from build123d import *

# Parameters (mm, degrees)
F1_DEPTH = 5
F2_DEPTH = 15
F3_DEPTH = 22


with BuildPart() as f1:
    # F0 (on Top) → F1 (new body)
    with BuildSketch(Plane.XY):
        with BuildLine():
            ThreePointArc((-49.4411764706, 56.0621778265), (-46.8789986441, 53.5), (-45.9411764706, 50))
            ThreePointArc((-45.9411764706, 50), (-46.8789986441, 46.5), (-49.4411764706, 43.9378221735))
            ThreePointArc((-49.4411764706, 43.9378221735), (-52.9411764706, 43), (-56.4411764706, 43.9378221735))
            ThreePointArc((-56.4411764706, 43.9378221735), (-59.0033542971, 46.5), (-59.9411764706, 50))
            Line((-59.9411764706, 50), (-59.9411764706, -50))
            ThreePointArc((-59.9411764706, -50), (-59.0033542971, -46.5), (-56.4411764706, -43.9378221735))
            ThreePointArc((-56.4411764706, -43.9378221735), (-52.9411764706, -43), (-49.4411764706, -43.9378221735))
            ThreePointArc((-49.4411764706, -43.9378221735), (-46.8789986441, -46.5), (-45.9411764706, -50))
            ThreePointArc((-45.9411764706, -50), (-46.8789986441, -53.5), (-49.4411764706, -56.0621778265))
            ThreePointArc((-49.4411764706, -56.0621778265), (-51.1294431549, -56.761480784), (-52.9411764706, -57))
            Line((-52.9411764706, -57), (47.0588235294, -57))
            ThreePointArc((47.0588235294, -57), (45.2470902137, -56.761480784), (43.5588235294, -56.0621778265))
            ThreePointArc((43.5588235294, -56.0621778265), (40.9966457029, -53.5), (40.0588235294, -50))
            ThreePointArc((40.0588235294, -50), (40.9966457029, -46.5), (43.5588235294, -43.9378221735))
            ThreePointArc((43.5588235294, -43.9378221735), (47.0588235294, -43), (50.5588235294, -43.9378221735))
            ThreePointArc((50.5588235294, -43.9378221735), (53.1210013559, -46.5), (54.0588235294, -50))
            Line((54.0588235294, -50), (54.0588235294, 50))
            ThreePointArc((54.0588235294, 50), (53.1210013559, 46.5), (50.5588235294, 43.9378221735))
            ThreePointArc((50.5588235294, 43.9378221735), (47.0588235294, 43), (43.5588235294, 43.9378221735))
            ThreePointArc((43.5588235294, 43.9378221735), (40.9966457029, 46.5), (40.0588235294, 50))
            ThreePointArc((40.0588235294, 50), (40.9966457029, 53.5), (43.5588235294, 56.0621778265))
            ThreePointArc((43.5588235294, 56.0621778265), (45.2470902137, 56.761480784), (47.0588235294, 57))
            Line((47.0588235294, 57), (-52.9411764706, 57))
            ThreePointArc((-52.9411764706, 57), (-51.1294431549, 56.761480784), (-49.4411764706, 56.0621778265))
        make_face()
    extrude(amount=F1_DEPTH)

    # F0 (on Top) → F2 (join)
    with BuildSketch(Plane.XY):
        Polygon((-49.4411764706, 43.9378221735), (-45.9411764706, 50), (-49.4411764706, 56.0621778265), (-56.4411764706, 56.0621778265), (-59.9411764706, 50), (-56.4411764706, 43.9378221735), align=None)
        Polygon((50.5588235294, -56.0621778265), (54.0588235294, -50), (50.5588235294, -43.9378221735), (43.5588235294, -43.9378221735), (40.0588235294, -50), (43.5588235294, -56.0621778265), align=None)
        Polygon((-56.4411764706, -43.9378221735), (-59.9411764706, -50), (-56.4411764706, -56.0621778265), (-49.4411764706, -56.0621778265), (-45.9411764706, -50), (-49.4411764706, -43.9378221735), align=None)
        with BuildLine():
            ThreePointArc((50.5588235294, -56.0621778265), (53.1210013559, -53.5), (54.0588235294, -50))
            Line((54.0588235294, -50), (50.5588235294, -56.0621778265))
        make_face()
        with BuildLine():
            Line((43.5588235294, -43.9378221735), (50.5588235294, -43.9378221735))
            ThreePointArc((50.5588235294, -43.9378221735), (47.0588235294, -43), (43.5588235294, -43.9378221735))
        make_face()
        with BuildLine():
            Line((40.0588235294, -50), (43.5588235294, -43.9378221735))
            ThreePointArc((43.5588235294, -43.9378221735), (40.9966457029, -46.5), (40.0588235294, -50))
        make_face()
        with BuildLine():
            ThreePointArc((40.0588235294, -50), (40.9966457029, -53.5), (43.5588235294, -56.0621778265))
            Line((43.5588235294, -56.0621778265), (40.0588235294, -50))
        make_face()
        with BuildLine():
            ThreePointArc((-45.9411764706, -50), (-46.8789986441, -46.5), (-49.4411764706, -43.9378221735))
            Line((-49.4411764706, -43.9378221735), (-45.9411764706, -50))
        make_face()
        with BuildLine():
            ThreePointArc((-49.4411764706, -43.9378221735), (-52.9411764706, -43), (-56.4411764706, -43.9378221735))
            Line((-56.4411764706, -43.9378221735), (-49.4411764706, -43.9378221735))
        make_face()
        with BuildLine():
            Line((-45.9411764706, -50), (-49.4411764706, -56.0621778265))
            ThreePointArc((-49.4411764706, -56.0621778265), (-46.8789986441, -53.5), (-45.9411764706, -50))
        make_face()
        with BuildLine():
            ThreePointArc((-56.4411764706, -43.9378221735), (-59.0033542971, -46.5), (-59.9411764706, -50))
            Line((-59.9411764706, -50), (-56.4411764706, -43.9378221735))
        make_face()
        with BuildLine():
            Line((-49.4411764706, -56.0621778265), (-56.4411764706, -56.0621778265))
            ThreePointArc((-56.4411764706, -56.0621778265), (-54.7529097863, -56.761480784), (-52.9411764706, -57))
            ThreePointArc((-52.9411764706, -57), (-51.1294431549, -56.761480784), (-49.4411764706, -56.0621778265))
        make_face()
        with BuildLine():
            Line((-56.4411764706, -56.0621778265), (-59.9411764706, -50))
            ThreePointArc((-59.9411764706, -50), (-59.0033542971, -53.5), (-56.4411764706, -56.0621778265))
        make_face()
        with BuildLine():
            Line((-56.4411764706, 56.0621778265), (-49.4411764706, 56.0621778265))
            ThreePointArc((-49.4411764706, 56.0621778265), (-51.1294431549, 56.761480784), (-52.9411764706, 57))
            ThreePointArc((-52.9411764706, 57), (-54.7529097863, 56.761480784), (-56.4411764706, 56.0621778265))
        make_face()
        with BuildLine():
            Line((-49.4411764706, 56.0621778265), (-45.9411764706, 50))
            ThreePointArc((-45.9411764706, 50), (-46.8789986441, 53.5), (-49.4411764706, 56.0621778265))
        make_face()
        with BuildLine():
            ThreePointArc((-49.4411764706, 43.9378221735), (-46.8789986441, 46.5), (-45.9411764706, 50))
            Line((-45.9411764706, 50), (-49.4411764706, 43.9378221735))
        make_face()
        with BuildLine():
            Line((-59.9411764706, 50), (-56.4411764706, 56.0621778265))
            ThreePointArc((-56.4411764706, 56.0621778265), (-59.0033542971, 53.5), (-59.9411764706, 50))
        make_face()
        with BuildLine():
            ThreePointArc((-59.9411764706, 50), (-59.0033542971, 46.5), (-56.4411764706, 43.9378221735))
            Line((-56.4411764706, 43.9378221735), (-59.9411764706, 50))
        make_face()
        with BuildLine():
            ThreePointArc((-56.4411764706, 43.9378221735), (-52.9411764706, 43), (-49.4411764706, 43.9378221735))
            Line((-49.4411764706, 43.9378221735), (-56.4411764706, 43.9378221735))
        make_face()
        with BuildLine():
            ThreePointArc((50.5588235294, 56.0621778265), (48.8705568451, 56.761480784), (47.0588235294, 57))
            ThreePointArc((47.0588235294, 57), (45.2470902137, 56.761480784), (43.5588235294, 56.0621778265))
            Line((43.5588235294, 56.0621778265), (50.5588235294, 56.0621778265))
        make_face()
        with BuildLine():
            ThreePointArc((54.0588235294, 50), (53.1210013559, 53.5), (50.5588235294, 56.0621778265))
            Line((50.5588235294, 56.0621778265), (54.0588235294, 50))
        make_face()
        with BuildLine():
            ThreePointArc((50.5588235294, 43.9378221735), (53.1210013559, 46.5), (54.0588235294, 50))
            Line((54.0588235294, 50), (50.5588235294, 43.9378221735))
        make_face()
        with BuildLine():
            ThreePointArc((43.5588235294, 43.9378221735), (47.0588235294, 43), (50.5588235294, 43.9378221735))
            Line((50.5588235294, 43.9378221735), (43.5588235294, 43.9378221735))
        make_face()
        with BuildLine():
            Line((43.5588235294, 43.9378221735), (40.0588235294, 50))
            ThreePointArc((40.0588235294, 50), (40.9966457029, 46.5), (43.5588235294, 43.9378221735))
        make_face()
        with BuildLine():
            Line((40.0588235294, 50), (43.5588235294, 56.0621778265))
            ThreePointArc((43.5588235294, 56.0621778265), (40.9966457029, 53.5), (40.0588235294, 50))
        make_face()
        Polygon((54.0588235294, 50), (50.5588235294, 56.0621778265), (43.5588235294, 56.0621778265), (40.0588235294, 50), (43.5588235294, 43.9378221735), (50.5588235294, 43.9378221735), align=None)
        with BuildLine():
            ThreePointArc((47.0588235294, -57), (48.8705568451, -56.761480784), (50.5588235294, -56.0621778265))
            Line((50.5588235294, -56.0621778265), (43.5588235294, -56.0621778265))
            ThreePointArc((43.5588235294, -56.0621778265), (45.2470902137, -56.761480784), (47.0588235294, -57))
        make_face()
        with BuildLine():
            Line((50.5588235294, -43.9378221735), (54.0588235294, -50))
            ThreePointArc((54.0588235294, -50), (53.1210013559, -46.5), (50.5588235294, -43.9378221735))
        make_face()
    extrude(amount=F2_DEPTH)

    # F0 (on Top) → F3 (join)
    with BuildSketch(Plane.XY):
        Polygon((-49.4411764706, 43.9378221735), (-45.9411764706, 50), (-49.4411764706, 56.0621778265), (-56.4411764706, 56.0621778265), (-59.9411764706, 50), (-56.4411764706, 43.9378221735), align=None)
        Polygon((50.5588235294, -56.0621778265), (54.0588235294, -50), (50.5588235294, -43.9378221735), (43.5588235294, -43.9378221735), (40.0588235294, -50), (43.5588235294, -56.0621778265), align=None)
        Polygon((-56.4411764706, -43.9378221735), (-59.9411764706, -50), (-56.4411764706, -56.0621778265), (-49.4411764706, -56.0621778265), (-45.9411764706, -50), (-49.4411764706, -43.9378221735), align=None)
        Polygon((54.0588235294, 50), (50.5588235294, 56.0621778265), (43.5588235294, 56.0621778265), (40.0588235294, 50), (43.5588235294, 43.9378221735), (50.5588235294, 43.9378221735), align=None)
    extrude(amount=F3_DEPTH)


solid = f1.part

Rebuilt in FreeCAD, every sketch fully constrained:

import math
import FreeCAD as App
import Part
import Sketcher
from FreeCAD import Vector
Q = App.Units.Quantity


def add_polygon(sketch, points):
    """Adds a closed chain of lines whose ends are joined by coincident constraints."""
    first, n = sketch.GeometryCount, len(points)
    for a, b in zip(points, points[1:] + points[:1]):
        sketch.addGeometry(Part.LineSegment(App.Vector(*a, 0), App.Vector(*b, 0)), False)
    for i in range(n):
        sketch.addConstraint(Sketcher.Constraint("Coincident", first + i, 2, first + (i + 1) % n, 1))

doc = App.newDocument("Part")
body = doc.addObject("PartDesign::Body", "Body")

# Sketch on XY plane
sketch1 = body.newObject("Sketcher::SketchObject", "Sketch")
sketch1.AttachmentSupport = (doc.getObject("XY_Plane"), [""])
sketch1.MapMode = "FlatFace"
sketch1.addGeometry([
    Part.ArcOfCircle(Part.Circle(Vector(-52.941176, 50, 0), Vector(0, 0, 1), 7), math.radians(0), math.radians(60)),  # 0
    Part.ArcOfCircle(Part.Circle(Vector(-52.941176, 50, 0), Vector(0, 0, 1), 7), math.radians(-60), math.radians(0)),  # 1
    Part.ArcOfCircle(Part.Circle(Vector(-52.941176, 50, 0), Vector(0, 0, 1), 7), math.radians(-120), math.radians(-60)),  # 2
    Part.ArcOfCircle(Part.Circle(Vector(-52.941176, 50, 0), Vector(0, 0, 1), 7), math.radians(180), math.radians(240)),  # 3
    Part.LineSegment(Vector(-59.941176, 50, 0), Vector(-59.941176, -50, 0)),  # 4
    Part.ArcOfCircle(Part.Circle(Vector(-52.941176, -50, 0), Vector(0, 0, 1), 7), math.radians(120), math.radians(180)),  # 5
    Part.ArcOfCircle(Part.Circle(Vector(-52.941176, -50, 0), Vector(0, 0, 1), 7), math.radians(60), math.radians(120)),  # 6
    Part.ArcOfCircle(Part.Circle(Vector(-52.941176, -50, 0), Vector(0, 0, 1), 7), math.radians(0), math.radians(60)),  # 7
    Part.ArcOfCircle(Part.Circle(Vector(-52.941176, -50, 0), Vector(0, 0, 1), 7), math.radians(-60), math.radians(0)),  # 8
    Part.ArcOfCircle(Part.Circle(Vector(-52.941176, -50, 0), Vector(0, 0, 1), 7), math.radians(-90), math.radians(-60)),  # 9
    Part.LineSegment(Vector(-52.941176, -57, 0), Vector(47.058824, -57, 0)),  # 10
    Part.ArcOfCircle(Part.Circle(Vector(47.058824, -50, 0), Vector(0, 0, 1), 7), math.radians(-120), math.radians(-90)),  # 11
    Part.ArcOfCircle(Part.Circle(Vector(47.058824, -50, 0), Vector(0, 0, 1), 7), math.radians(180), math.radians(240)),  # 12
    Part.ArcOfCircle(Part.Circle(Vector(47.058824, -50, 0), Vector(0, 0, 1), 7), math.radians(120), math.radians(180)),  # 13
    Part.ArcOfCircle(Part.Circle(Vector(47.058824, -50, 0), Vector(0, 0, 1), 7), math.radians(60), math.radians(120)),  # 14
    Part.ArcOfCircle(Part.Circle(Vector(47.058824, -50, 0), Vector(0, 0, 1), 7), math.radians(0), math.radians(60)),  # 15
    Part.LineSegment(Vector(54.058824, -50, 0), Vector(54.058824, 50, 0)),  # 16
    Part.ArcOfCircle(Part.Circle(Vector(47.058824, 50, 0), Vector(0, 0, 1), 7), math.radians(-60), math.radians(0)),  # 17
    Part.ArcOfCircle(Part.Circle(Vector(47.058824, 50, 0), Vector(0, 0, 1), 7), math.radians(-120), math.radians(-60)),  # 18
    Part.ArcOfCircle(Part.Circle(Vector(47.058824, 50, 0), Vector(0, 0, 1), 7), math.radians(180), math.radians(240)),  # 19
    Part.ArcOfCircle(Part.Circle(Vector(47.058824, 50, 0), Vector(0, 0, 1), 7), math.radians(120), math.radians(180)),  # 20
    Part.ArcOfCircle(Part.Circle(Vector(47.058824, 50, 0), Vector(0, 0, 1), 7), math.radians(90), math.radians(120)),  # 21
    Part.LineSegment(Vector(47.058824, 57, 0), Vector(-52.941176, 57, 0)),  # 22
    Part.ArcOfCircle(Part.Circle(Vector(-52.941176, 50, 0), Vector(0, 0, 1), 7), math.radians(60), math.radians(90)),  # 23
], False)
sketch1.addConstraint([
    Sketcher.Constraint("Tangent", 0, 1, 1, 2),
    Sketcher.Constraint("Tangent", 1, 1, 2, 2),
    Sketcher.Constraint("Tangent", 2, 1, 3, 2),
    Sketcher.Constraint("Tangent", 3, 1, 4, 1),
    Sketcher.Constraint("Tangent", 4, 2, 5, 2),
    Sketcher.Constraint("Tangent", 5, 1, 6, 2),
    Sketcher.Constraint("Tangent", 6, 1, 7, 2),
    Sketcher.Constraint("Tangent", 7, 1, 8, 2),
    Sketcher.Constraint("Tangent", 8, 1, 9, 2),
    Sketcher.Constraint("Tangent", 9, 1, 10, 1),
    Sketcher.Constraint("Tangent", 10, 2, 11, 2),
    Sketcher.Constraint("Tangent", 11, 1, 12, 2),
    Sketcher.Constraint("Tangent", 12, 1, 13, 2),
    Sketcher.Constraint("Tangent", 13, 1, 14, 2),
    Sketcher.Constraint("Tangent", 14, 1, 15, 2),
    Sketcher.Constraint("Tangent", 15, 1, 16, 1),
    Sketcher.Constraint("Tangent", 16, 2, 17, 2),
    Sketcher.Constraint("Tangent", 17, 1, 18, 2),
    Sketcher.Constraint("Tangent", 18, 1, 19, 2),
    Sketcher.Constraint("Tangent", 19, 1, 20, 2),
    Sketcher.Constraint("Tangent", 20, 1, 21, 2),
    Sketcher.Constraint("Tangent", 21, 1, 22, 1),
    Sketcher.Constraint("Tangent", 22, 2, 23, 2),
    Sketcher.Constraint("Tangent", 23, 1, 0, 2),
    Sketcher.Constraint("Vertical", 4),
    Sketcher.Constraint("Horizontal", 10),
    Sketcher.Constraint("Vertical", 16),
    Sketcher.Constraint("Horizontal", 22),
    Sketcher.Constraint("Coincident", 2, 3, 0, 3),
    Sketcher.Constraint("Coincident", 7, 3, 5, 3),
    Sketcher.Constraint("Coincident", 9, 3, 5, 3),
    Sketcher.Constraint("Coincident", 13, 3, 11, 3),
    Sketcher.Constraint("Coincident", 15, 3, 11, 3),
    Sketcher.Constraint("Coincident", 19, 3, 17, 3),
    Sketcher.Constraint("Coincident", 21, 3, 17, 3),
    Sketcher.Constraint("Equal", 2, 3),
    Sketcher.Constraint("Equal", 3, 5),
    Sketcher.Constraint("Equal", 9, 11),
    Sketcher.Constraint("Equal", 15, 17),
    Sketcher.Constraint("Equal", 21, 23),
    Sketcher.Constraint("Symmetric", 2, 1, 5, 1, -1),
    Sketcher.Constraint("Horizontal", 23, 3, 0, 1),
    Sketcher.Constraint("Horizontal", 1, 1, 2, 1),
    Sketcher.Constraint("Horizontal", 5, 1, 6, 1),
    Sketcher.Constraint("Horizontal", 4, 2, 7, 1),
    Sketcher.Constraint("Horizontal", 8, 1, 11, 1),
    Sketcher.Constraint("Horizontal", 7, 1, 12, 1),
    Sketcher.Constraint("Horizontal", 6, 1, 13, 1),
    Sketcher.Constraint("Horizontal", 13, 1, 14, 1),
    Sketcher.Constraint("Horizontal", 2, 1, 17, 1),
    Sketcher.Constraint("Horizontal", 17, 1, 18, 1),
    Sketcher.Constraint("Horizontal", 16, 2, 19, 1),
    Sketcher.Constraint("Horizontal", 20, 1, 23, 1),
    Sketcher.Constraint("Vertical", 6, 1, 8, 1),
    Sketcher.Constraint("Vertical", 18, 1, 20, 1),
    Sketcher.Constraint("Equal", 22, 4),
    Sketcher.Constraint("Radius", 0, 7.0),
    Sketcher.Constraint("DistanceX", 10, 1, 10, 2, 100.0),
    Sketcher.Constraint("DistanceX", 23, 3, 1, 1, 3.5),
    Sketcher.Constraint("DistanceX", 0, 3, -1, 1, 52.941176),
])
pad1 = body.newObject("PartDesign::Pad", "Pad")
pad1.Profile = sketch1
pad1.Length = 5

# Sketch on XY plane
sketch2 = body.newObject("Sketcher::SketchObject", "Sketch001")
sketch2.AttachmentSupport = (doc.getObject("XY_Plane"), [""])
sketch2.MapMode = "FlatFace"
sketch2.addGeometry([
    Part.ArcOfCircle(Part.Circle(Vector(-52.941176, 50, 0), Vector(0, 0, 1), 7), math.radians(0), math.radians(60)),  # 0
    Part.ArcOfCircle(Part.Circle(Vector(-52.941176, 50, 0), Vector(0, 0, 1), 7), math.radians(60), math.radians(90)),  # 1
    Part.ArcOfCircle(Part.Circle(Vector(-52.941176, 50, 0), Vector(0, 0, 1), 7), math.radians(90), math.radians(120)),  # 2
    Part.ArcOfCircle(Part.Circle(Vector(-52.941176, 50, 0), Vector(0, 0, 1), 7), math.radians(120), math.radians(180)),  # 3
    Part.ArcOfCircle(Part.Circle(Vector(-52.941176, 50, 0), Vector(0, 0, 1), 7), math.radians(180), math.radians(240)),  # 4
    Part.ArcOfCircle(Part.Circle(Vector(-52.941176, 50, 0), Vector(0, 0, 1), 7), math.radians(-120), math.radians(-60)),  # 5
    Part.ArcOfCircle(Part.Circle(Vector(-52.941176, 50, 0), Vector(0, 0, 1), 7), math.radians(-60), math.radians(0)),  # 6
    Part.ArcOfCircle(Part.Circle(Vector(47.058824, -50, 0), Vector(0, 0, 1), 7), math.radians(60), math.radians(120)),  # 7
    Part.ArcOfCircle(Part.Circle(Vector(47.058824, -50, 0), Vector(0, 0, 1), 7), math.radians(120), math.radians(180)),  # 8
    Part.ArcOfCircle(Part.Circle(Vector(47.058824, -50, 0), Vector(0, 0, 1), 7), math.radians(180), math.radians(240)),  # 9
    Part.ArcOfCircle(Part.Circle(Vector(47.058824, -50, 0), Vector(0, 0, 1), 7), math.radians(-120), math.radians(-90)),  # 10
    Part.ArcOfCircle(Part.Circle(Vector(47.058824, -50, 0), Vector(0, 0, 1), 7), math.radians(-90), math.radians(-60)),  # 11
    Part.ArcOfCircle(Part.Circle(Vector(47.058824, -50, 0), Vector(0, 0, 1), 7), math.radians(-60), math.radians(0)),  # 12
    Part.ArcOfCircle(Part.Circle(Vector(47.058824, -50, 0), Vector(0, 0, 1), 7), math.radians(0), math.radians(60)),  # 13
    Part.ArcOfCircle(Part.Circle(Vector(-52.941176, -50, 0), Vector(0, 0, 1), 7), math.radians(-120), math.radians(-90)),  # 14
    Part.ArcOfCircle(Part.Circle(Vector(-52.941176, -50, 0), Vector(0, 0, 1), 7), math.radians(-90), math.radians(-60)),  # 15
    Part.ArcOfCircle(Part.Circle(Vector(-52.941176, -50, 0), Vector(0, 0, 1), 7), math.radians(-60), math.radians(0)),  # 16
    Part.ArcOfCircle(Part.Circle(Vector(-52.941176, -50, 0), Vector(0, 0, 1), 7), math.radians(0), math.radians(60)),  # 17
    Part.ArcOfCircle(Part.Circle(Vector(-52.941176, -50, 0), Vector(0, 0, 1), 7), math.radians(60), math.radians(120)),  # 18
    Part.ArcOfCircle(Part.Circle(Vector(-52.941176, -50, 0), Vector(0, 0, 1), 7), math.radians(120), math.radians(180)),  # 19
    Part.ArcOfCircle(Part.Circle(Vector(-52.941176, -50, 0), Vector(0, 0, 1), 7), math.radians(180), math.radians(240)),  # 20
    Part.ArcOfCircle(Part.Circle(Vector(47.058824, 50, 0), Vector(0, 0, 1), 7), math.radians(60), math.radians(90)),  # 21
    Part.ArcOfCircle(Part.Circle(Vector(47.058824, 50, 0), Vector(0, 0, 1), 7), math.radians(90), math.radians(120)),  # 22
    Part.ArcOfCircle(Part.Circle(Vector(47.058824, 50, 0), Vector(0, 0, 1), 7), math.radians(120), math.radians(180)),  # 23
    Part.ArcOfCircle(Part.Circle(Vector(47.058824, 50, 0), Vector(0, 0, 1), 7), math.radians(180), math.radians(240)),  # 24
    Part.ArcOfCircle(Part.Circle(Vector(47.058824, 50, 0), Vector(0, 0, 1), 7), math.radians(-120), math.radians(-60)),  # 25
    Part.ArcOfCircle(Part.Circle(Vector(47.058824, 50, 0), Vector(0, 0, 1), 7), math.radians(-60), math.radians(0)),  # 26
    Part.ArcOfCircle(Part.Circle(Vector(47.058824, 50, 0), Vector(0, 0, 1), 7), math.radians(0), math.radians(60)),  # 27
], False)
sketch2.addConstraint([
    Sketcher.Constraint("Tangent", 0, 2, 1, 1),
    Sketcher.Constraint("Tangent", 1, 2, 2, 1),
    Sketcher.Constraint("Tangent", 2, 2, 3, 1),
    Sketcher.Constraint("Tangent", 3, 2, 4, 1),
    Sketcher.Constraint("Tangent", 4, 2, 5, 1),
    Sketcher.Constraint("Tangent", 5, 2, 6, 1),
    Sketcher.Constraint("Tangent", 6, 2, 0, 1),
    Sketcher.Constraint("Tangent", 7, 2, 8, 1),
    Sketcher.Constraint("Tangent", 8, 2, 9, 1),
    Sketcher.Constraint("Tangent", 9, 2, 10, 1),
    Sketcher.Constraint("Tangent", 10, 2, 11, 1),
    Sketcher.Constraint("Tangent", 11, 2, 12, 1),
    Sketcher.Constraint("Tangent", 12, 2, 13, 1),
    Sketcher.Constraint("Tangent", 13, 2, 7, 1),
    Sketcher.Constraint("Tangent", 14, 2, 15, 1),
    Sketcher.Constraint("Tangent", 15, 2, 16, 1),
    Sketcher.Constraint("Tangent", 16, 2, 17, 1),
    Sketcher.Constraint("Tangent", 17, 2, 18, 1),
    Sketcher.Constraint("Tangent", 18, 2, 19, 1),
    Sketcher.Constraint("Tangent", 19, 2, 20, 1),
    Sketcher.Constraint("Tangent", 20, 2, 14, 1),
    Sketcher.Constraint("Tangent", 21, 2, 22, 1),
    Sketcher.Constraint("Tangent", 22, 2, 23, 1),
    Sketcher.Constraint("Tangent", 23, 2, 24, 1),
    Sketcher.Constraint("Tangent", 24, 2, 25, 1),
    Sketcher.Constraint("Tangent", 25, 2, 26, 1),
    Sketcher.Constraint("Tangent", 26, 2, 27, 1),
    Sketcher.Constraint("Tangent", 27, 2, 21, 1),
    Sketcher.Constraint("Coincident", 2, 3, 0, 3),
    Sketcher.Constraint("Coincident", 4, 3, 0, 3),
    Sketcher.Constraint("Coincident", 9, 3, 7, 3),
    Sketcher.Constraint("Coincident", 11, 3, 7, 3),
    Sketcher.Constraint("Coincident", 16, 3, 14, 3),
    Sketcher.Constraint("Coincident", 18, 3, 14, 3),
    Sketcher.Constraint("Coincident", 23, 3, 21, 3),
    Sketcher.Constraint("Coincident", 25, 3, 21, 3),
    Sketcher.Constraint("Equal", 6, 7),
    Sketcher.Constraint("Equal", 13, 14),
    Sketcher.Constraint("Equal", 20, 21),
    Sketcher.Constraint("Symmetric", 0, 3, 14, 3, -1),
    Sketcher.Constraint("Symmetric", 7, 3, 21, 3, -1),
    Sketcher.Constraint("Horizontal", 13, 3, 14, 3),
    Sketcher.Constraint("Horizontal", 0, 2, 2, 2),
    Sketcher.Constraint("Horizontal", 27, 3, 3, 2),
    Sketcher.Constraint("Horizontal", 4, 2, 5, 2),
    Sketcher.Constraint("Horizontal", 3, 2, 6, 2),
    Sketcher.Constraint("Horizontal", 20, 3, 8, 2),
    Sketcher.Constraint("Horizontal", 9, 2, 11, 2),
    Sketcher.Constraint("Horizontal", 8, 2, 12, 2),
    Sketcher.Constraint("Horizontal", 7, 2, 13, 2),
    Sketcher.Constraint("Horizontal", 11, 2, 15, 2),
    Sketcher.Constraint("Horizontal", 12, 2, 16, 2),
    Sketcher.Constraint("Horizontal", 13, 2, 17, 2),
    Sketcher.Constraint("Horizontal", 17, 2, 18, 2),
    Sketcher.Constraint("Horizontal", 16, 2, 19, 2),
    Sketcher.Constraint("Horizontal", 15, 2, 20, 2),
    Sketcher.Constraint("Horizontal", 2, 2, 22, 2),
    Sketcher.Constraint("Horizontal", 6, 2, 23, 2),
    Sketcher.Constraint("Horizontal", 5, 2, 24, 2),
    Sketcher.Constraint("Horizontal", 24, 2, 25, 2),
    Sketcher.Constraint("Horizontal", 23, 2, 26, 2),
    Sketcher.Constraint("Horizontal", 22, 2, 27, 2),
    Sketcher.Constraint("Vertical", 20, 3, 1, 2),
    Sketcher.Constraint("Vertical", 2, 2, 4, 2),
    Sketcher.Constraint("Vertical", 7, 2, 9, 2),
    Sketcher.Constraint("Vertical", 27, 3, 10, 2),
    Sketcher.Constraint("Vertical", 1, 2, 14, 2),
    Sketcher.Constraint("Vertical", 5, 2, 15, 2),
    Sketcher.Constraint("Vertical", 10, 2, 21, 2),
    Sketcher.Constraint("Radius", 0, 7.0),
    Sketcher.Constraint("DistanceY", -1, 1, 0, 3, 50.0),
    Sketcher.Constraint("DistanceX", 2, 3, 7, 3, 100.0),
    Sketcher.Constraint("DistanceX", 0, 3, 0, 2, 3.5),
    Sketcher.Constraint("DistanceX", 0, 3, -1, 1, 52.941176),
])
pad2 = body.newObject("PartDesign::Pad", "Pad001")
pad2.Profile = sketch2
pad2.Length = 15

# Sketch on XY plane
sketch3 = body.newObject("Sketcher::SketchObject", "Sketch002")
sketch3.AttachmentSupport = (doc.getObject("XY_Plane"), [""])
sketch3.MapMode = "FlatFace"
add_polygon(sketch3, [(-49.441176, 43.937822), (-45.941176, 50), (-49.441176, 56.062178), (-56.441176, 56.062178), (-59.941176, 50), (-56.441176, 43.937822)])  # lines 0-5
add_polygon(sketch3, [(50.558824, -56.062178), (54.058824, -50), (50.558824, -43.937822), (43.558824, -43.937822), (40.058824, -50), (43.558824, -56.062178)])  # lines 6-11
add_polygon(sketch3, [(-56.441176, -43.937822), (-59.941176, -50), (-56.441176, -56.062178), (-49.441176, -56.062178), (-45.941176, -50), (-49.441176, -43.937822)])  # lines 12-17
add_polygon(sketch3, [(54.058824, 50), (50.558824, 56.062178), (43.558824, 56.062178), (40.058824, 50), (43.558824, 43.937822), (50.558824, 43.937822)])  # lines 18-23
sketch3.addConstraint([
    Sketcher.Constraint("Horizontal", 2),
    Sketcher.Constraint("Horizontal", 5),
    Sketcher.Constraint("Horizontal", 8),
    Sketcher.Constraint("Horizontal", 11),
    Sketcher.Constraint("Horizontal", 14),
    Sketcher.Constraint("Horizontal", 17),
    Sketcher.Constraint("Horizontal", 19),
    Sketcher.Constraint("Horizontal", 22),
    Sketcher.Constraint("Symmetric", 3, 2, 12, 2, -1),
    Sketcher.Constraint("Symmetric", 2, 2, 13, 2, -1),
    Sketcher.Constraint("Symmetric", 0, 2, 15, 2, -1),
    Sketcher.Constraint("Symmetric", 5, 2, 16, 2, -1),
    Sketcher.Constraint("Symmetric", 11, 2, 18, 2, -1),
    Sketcher.Constraint("Symmetric", 9, 2, 20, 2, -1),
    Sketcher.Constraint("Symmetric", 8, 2, 21, 2, -1),
    Sketcher.Constraint("Symmetric", 6, 2, 23, 2, -1),
    Sketcher.Constraint("Parallel", 0, 3),
    Sketcher.Constraint("Parallel", 1, 4),
    Sketcher.Constraint("Parallel", 3, 6),
    Sketcher.Constraint("Parallel", 4, 7),
    Sketcher.Constraint("Parallel", 6, 9),
    Sketcher.Constraint("Parallel", 7, 10),
    Sketcher.Constraint("Parallel", 9, 12),
    Sketcher.Constraint("Parallel", 10, 13),
    Sketcher.Constraint("Parallel", 12, 15),
    Sketcher.Constraint("Parallel", 15, 20),
    Sketcher.Constraint("Parallel", 20, 23),
    Sketcher.Constraint("Horizontal", 0, 2, 3, 2),
    Sketcher.Constraint("Horizontal", 6, 2, 9, 2),
    Sketcher.Constraint("Horizontal", 9, 2, 12, 2),
    Sketcher.Constraint("Horizontal", 11, 2, 13, 2),
    Sketcher.Constraint("Horizontal", 8, 2, 16, 2),
    Sketcher.Constraint("Vertical", 2, 2, 4, 2),
    Sketcher.Constraint("Equal", 5, 8),
    Sketcher.Constraint("DistanceX", 2, 2, 2, 1, 7.0),
    Sketcher.Constraint("Angle", 0, Q("60 deg")),
    Sketcher.Constraint("Distance", 0, 7.0),
    Sketcher.Constraint("DistanceY", -1, 1, 0, 2, 50.0),
    Sketcher.Constraint("DistanceX", 0, 2, 6, 2, 100.0),
    Sketcher.Constraint("DistanceX", 0, 2, -1, 1, 45.941176),
])
pad3 = body.newObject("PartDesign::Pad", "Pad002")
pad3.Profile = sketch3
pad3.Length = 22

doc.recompute()
